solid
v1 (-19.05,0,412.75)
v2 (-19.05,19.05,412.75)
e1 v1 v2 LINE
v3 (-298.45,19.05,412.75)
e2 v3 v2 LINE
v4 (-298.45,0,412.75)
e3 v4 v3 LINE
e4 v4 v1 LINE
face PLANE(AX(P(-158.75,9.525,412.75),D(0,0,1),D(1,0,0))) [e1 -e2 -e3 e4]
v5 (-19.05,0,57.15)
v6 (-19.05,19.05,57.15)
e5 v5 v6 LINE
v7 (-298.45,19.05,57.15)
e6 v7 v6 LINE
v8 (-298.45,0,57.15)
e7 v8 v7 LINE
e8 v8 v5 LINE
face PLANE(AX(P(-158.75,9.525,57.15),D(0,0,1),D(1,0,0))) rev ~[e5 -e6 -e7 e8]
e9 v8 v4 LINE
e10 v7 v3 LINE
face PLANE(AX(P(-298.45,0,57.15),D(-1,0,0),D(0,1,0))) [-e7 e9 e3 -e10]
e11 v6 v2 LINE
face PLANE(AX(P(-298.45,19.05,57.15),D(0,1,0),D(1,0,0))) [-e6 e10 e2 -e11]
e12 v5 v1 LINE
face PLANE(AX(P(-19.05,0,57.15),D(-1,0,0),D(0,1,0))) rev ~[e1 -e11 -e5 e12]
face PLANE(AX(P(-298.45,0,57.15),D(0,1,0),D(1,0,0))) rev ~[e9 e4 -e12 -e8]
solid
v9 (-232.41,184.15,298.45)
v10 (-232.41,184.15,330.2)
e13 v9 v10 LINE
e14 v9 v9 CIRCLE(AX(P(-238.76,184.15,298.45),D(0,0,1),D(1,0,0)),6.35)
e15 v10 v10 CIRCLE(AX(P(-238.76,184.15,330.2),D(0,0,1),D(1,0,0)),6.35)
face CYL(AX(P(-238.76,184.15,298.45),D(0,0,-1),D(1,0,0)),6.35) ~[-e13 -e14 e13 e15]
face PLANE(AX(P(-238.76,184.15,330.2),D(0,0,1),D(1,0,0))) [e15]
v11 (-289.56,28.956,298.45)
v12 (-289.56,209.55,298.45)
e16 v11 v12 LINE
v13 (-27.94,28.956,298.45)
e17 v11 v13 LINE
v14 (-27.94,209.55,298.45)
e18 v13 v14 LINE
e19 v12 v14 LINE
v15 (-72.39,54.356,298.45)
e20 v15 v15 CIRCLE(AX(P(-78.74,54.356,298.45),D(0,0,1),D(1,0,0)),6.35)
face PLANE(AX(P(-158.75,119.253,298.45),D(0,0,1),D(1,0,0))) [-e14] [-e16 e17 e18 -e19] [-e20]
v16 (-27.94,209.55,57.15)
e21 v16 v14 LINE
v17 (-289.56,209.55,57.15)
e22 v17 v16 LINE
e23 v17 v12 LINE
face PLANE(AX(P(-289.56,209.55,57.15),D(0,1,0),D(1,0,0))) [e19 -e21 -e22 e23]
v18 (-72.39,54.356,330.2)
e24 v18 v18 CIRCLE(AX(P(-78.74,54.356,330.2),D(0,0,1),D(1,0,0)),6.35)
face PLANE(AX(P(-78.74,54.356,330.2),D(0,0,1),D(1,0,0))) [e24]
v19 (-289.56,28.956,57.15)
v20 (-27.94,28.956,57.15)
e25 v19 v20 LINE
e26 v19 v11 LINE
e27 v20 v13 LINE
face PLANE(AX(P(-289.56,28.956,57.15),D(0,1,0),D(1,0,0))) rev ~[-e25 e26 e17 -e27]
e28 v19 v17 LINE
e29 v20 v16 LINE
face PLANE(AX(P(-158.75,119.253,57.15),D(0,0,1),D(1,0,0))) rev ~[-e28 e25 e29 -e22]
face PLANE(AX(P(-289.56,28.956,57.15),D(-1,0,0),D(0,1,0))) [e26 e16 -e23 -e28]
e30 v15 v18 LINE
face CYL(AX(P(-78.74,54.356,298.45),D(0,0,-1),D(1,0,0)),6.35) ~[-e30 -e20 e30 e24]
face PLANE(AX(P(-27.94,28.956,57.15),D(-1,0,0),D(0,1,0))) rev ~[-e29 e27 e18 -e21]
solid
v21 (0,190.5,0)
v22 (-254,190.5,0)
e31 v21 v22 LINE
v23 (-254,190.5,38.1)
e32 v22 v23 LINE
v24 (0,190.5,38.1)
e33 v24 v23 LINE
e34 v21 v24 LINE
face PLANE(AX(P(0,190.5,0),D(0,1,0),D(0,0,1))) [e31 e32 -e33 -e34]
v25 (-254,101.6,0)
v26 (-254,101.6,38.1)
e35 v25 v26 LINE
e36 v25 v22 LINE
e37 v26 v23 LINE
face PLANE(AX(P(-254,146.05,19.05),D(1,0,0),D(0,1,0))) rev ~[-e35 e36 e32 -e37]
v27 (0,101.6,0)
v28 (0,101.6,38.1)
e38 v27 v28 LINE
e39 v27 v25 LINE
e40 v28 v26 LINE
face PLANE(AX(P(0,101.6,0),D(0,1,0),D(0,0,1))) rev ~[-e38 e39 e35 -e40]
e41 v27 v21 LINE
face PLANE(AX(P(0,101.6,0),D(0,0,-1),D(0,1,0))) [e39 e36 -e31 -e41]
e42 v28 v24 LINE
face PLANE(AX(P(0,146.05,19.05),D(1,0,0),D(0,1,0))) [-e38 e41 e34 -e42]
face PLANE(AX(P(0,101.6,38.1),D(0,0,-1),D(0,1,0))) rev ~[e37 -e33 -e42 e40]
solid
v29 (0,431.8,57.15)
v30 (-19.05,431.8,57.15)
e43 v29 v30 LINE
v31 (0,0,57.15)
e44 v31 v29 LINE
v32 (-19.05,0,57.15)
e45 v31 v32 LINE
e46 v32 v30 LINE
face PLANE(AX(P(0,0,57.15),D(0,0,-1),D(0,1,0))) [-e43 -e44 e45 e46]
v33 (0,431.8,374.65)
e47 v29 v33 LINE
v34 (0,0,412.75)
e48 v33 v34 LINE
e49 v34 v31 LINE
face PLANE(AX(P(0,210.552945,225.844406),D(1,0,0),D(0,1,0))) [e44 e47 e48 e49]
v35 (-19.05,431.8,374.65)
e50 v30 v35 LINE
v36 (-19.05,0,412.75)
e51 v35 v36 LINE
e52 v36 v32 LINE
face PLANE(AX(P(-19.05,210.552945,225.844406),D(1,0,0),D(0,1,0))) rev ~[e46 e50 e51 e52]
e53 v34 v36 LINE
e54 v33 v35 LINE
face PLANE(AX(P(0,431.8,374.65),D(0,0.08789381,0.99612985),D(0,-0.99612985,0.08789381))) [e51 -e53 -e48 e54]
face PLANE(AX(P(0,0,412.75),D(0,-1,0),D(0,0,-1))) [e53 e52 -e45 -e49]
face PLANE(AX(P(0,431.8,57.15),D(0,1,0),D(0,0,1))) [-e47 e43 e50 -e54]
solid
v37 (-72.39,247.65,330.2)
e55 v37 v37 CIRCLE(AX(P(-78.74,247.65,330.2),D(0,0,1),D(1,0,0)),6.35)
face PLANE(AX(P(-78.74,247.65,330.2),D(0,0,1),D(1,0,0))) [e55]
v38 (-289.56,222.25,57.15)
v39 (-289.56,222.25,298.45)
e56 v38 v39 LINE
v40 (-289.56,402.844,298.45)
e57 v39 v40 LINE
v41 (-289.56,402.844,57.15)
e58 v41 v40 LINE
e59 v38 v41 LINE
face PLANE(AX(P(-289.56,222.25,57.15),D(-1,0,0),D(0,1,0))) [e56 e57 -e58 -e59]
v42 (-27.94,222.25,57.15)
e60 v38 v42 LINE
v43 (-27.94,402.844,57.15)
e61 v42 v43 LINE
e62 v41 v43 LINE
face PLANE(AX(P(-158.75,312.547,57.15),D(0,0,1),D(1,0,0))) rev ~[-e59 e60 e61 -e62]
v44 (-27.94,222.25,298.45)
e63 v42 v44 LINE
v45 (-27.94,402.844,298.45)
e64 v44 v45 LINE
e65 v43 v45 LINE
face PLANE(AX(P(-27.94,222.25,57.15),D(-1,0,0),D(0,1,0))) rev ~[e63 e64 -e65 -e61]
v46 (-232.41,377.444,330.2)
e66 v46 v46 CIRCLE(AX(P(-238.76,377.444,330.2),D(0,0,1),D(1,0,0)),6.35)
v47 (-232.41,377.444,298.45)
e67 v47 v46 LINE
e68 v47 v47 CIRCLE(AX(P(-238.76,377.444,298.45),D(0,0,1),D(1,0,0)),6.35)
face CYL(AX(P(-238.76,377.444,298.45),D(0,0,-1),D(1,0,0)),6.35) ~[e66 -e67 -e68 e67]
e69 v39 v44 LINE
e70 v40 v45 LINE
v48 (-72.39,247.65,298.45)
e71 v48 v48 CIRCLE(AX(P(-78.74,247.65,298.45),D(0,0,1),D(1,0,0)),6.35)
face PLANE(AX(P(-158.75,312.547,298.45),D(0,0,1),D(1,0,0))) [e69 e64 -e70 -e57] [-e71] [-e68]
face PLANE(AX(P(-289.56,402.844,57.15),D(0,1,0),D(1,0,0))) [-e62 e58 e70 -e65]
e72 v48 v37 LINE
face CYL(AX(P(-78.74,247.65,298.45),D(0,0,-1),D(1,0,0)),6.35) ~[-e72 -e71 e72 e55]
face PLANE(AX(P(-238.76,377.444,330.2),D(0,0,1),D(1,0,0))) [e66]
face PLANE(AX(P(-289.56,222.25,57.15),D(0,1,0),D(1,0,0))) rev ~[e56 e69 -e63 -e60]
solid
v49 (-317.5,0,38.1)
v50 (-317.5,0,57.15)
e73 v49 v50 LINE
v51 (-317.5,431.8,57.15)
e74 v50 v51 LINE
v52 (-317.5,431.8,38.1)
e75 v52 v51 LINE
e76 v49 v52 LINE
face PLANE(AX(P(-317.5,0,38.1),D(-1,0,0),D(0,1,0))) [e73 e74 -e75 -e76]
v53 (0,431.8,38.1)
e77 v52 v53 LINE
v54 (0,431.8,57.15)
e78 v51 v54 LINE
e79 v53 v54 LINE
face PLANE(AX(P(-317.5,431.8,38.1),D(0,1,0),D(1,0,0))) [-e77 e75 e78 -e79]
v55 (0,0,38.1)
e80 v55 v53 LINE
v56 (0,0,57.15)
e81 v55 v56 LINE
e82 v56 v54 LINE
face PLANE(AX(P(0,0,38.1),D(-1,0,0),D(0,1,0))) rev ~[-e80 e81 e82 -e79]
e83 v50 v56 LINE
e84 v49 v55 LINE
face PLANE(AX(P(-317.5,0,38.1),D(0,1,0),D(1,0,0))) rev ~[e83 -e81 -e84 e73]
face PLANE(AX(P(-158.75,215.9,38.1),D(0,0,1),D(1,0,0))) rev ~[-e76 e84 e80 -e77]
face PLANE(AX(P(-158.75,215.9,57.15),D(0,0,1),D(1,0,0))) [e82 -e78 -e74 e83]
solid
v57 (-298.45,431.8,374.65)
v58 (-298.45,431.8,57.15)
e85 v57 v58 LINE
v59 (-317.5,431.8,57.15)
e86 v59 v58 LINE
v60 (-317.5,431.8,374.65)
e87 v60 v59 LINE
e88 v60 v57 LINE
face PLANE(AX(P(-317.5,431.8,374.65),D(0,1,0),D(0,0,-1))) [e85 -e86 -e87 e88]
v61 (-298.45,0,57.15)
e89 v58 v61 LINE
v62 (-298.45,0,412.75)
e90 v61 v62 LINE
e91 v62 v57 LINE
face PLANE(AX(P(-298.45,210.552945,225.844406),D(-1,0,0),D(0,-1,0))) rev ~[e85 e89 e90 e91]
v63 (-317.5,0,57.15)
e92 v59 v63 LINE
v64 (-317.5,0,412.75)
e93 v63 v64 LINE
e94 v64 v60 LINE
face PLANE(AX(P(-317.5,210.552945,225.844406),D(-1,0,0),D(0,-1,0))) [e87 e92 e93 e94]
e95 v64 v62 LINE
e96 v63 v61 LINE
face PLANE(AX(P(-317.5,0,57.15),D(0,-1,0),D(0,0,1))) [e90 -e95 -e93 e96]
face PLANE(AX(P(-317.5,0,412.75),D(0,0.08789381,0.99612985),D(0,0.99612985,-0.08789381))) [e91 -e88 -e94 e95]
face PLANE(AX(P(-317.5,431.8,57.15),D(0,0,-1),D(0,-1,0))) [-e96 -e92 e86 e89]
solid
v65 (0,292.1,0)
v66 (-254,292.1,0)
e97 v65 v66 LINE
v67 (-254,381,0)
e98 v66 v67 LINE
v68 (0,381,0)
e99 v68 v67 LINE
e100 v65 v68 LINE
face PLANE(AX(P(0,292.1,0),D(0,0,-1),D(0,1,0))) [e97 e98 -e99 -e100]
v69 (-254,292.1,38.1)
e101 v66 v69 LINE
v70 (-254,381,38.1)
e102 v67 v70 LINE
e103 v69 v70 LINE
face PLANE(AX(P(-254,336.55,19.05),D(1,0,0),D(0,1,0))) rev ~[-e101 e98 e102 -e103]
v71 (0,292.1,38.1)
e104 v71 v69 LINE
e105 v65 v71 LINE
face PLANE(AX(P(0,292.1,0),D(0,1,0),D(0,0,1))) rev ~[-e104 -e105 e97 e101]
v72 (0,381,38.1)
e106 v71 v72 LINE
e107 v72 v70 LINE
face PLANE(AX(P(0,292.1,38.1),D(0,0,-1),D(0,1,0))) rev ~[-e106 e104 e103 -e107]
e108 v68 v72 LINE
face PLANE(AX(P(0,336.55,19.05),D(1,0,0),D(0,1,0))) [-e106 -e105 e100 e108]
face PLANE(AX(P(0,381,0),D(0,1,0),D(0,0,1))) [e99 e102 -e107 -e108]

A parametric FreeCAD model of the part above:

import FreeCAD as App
import Part
import Sketcher
Q = App.Units.Quantity


def add_polygon(sketch, points):
    """Adds a closed chain of lines whose ends are joined by coincident constraints."""
    first, n = sketch.GeometryCount, len(points)
    for a, b in zip(points, points[1:] + points[:1]):
        sketch.addGeometry(Part.LineSegment(App.Vector(*a, 0), App.Vector(*b, 0)), False)
    for i in range(n):
        sketch.addConstraint(Sketcher.Constraint("Coincident", first + i, 2, first + (i + 1) % n, 1))

doc = App.newDocument("Part")
body = doc.addObject("PartDesign::Body", "Body")

# Sketch on YZ plane
sketch1 = body.newObject("Sketcher::SketchObject", "Sketch")
sketch1.AttachmentSupport = (doc.getObject("YZ_Plane"), [""])
sketch1.MapMode = "FlatFace"
add_polygon(sketch1, [(102, 38), (102, 0), (190, 0), (190, 38)])  # lines 0-3
sketch1.addConstraint(Sketcher.Constraint("Vertical", 0))
sketch1.addConstraint(Sketcher.Constraint("Horizontal", 1))
sketch1.addConstraint(Sketcher.Constraint("Vertical", 2))
sketch1.addConstraint(Sketcher.Constraint("Horizontal", 3))
sketch1.addConstraint(Sketcher.Constraint("PointOnObject", 0, 2, -1))
sketch1.addConstraint(Sketcher.Constraint("DistanceX", 1, 1, 1, 2, Q("3.5 in")))
sketch1.addConstraint(Sketcher.Constraint("DistanceY", 0, 2, 0, 1, Q("1.5 in")))
sketch1.addConstraint(Sketcher.Constraint("DistanceX", -1, 1, 0, 2, Q("4 in")))
pad1 = body.newObject("PartDesign::Pad", "Pad")
pad1.Profile = sketch1
pad1.Length = Q("10 in")
pad1.Reversed = True
body2 = doc.addObject("PartDesign::Body", "Body001")

# Sketch on YZ plane
sketch2 = body2.newObject("Sketcher::SketchObject", "Sketch001")
sketch2.AttachmentSupport = (doc.getObject("YZ_Plane001"), [""])
sketch2.MapMode = "FlatFace"
add_polygon(sketch2, [(292, 38), (292, 0), (381, 0), (381, 38)])  # lines 0-3
sketch2.addConstraint(Sketcher.Constraint("Vertical", 0))
sketch2.addConstraint(Sketcher.Constraint("Horizontal", 1))
sketch2.addConstraint(Sketcher.Constraint("Vertical", 2))
sketch2.addConstraint(Sketcher.Constraint("Horizontal", 3))
sketch2.addConstraint(Sketcher.Constraint("PointOnObject", 0, 2, -1))
sketch2.addConstraint(Sketcher.Constraint("DistanceX", 1, 1, 1, 2, Q("3.5 in")))
sketch2.addConstraint(Sketcher.Constraint("DistanceY", 0, 2, 0, 1, Q("1.5 in")))
sketch2.addConstraint(Sketcher.Constraint("DistanceX", -1, 1, 1, 2, Q("15 in")))
pad2 = body2.newObject("PartDesign::Pad", "Pad001")
pad2.Profile = sketch2
pad2.Length = Q("10 in")
pad2.Reversed = True
body3 = doc.addObject("PartDesign::Body", "Body002")

# Sketch on XY plane
sketch3 = body3.newObject("Sketcher::SketchObject", "Sketch002")
sketch3.AttachmentSupport = (doc.getObject("XY_Plane002"), [""])
sketch3.MapMode = "FlatFace"
sketch3.AttachmentOffset = App.Placement(App.Vector(0, 0, 1.5 * 25.4), App.Rotation())
add_polygon(sketch3, [(-318, 432), (-318, 0), (0, 0), (0, 432)])  # lines 0-3
sketch3.addConstraint(Sketcher.Constraint("Vertical", 0))
sketch3.addConstraint(Sketcher.Constraint("Horizontal", 1))
sketch3.addConstraint(Sketcher.Constraint("Vertical", 2))
sketch3.addConstraint(Sketcher.Constraint("Horizontal", 3))
sketch3.addConstraint(Sketcher.Constraint("Coincident", 1, 2, -1, 1))
sketch3.addConstraint(Sketcher.Constraint("DistanceY", 0, 2, 0, 1, Q("17 in")))
sketch3.addConstraint(Sketcher.Constraint("DistanceX", 1, 1, 1, 2, Q("12.5 in")))
pad3 = body3.newObject("PartDesign::Pad", "Pad002")
pad3.Profile = sketch3
pad3.Length = Q("0.75 in")
body4 = doc.addObject("PartDesign::Body", "Body003")

# Sketch on YZ plane
sketch4 = body4.newObject("Sketcher::SketchObject", "Sketch003")
sketch4.AttachmentSupport = (doc.getObject("YZ_Plane003"), [""])
sketch4.MapMode = "FlatFace"
sketch4.AttachmentOffset = App.Placement(App.Vector(0, 0, -12.5 * 25.4), App.Rotation())
add_polygon(sketch4, [(432, 375), (432, 57), (0, 57), (0, 413)])  # lines 0-3
sketch4.addConstraint(Sketcher.Constraint("Vertical", 0))
sketch4.addConstraint(Sketcher.Constraint("Horizontal", 1))
sketch4.addConstraint(Sketcher.Constraint("Vertical", 2))
sketch4.addConstraint(Sketcher.Constraint("PointOnObject", 1, 2, -2))
sketch4.addConstraint(Sketcher.Constraint("DistanceX", 1, 2, 1, 1, Q("17 in")))
sketch4.addConstraint(Sketcher.Constraint("DistanceY", 2, 1, 2, 2, Q("14 in")))
sketch4.addConstraint(Sketcher.Constraint("DistanceY", 0, 2, 0, 1, Q("12.5 in")))
sketch4.addConstraint(Sketcher.Constraint("DistanceY", -1, 1, 0, 2, Q("2.25 in")))
pad4 = body4.newObject("PartDesign::Pad", "Pad003")
pad4.Profile = sketch4
pad4.Length = Q("0.75 in")
body5 = doc.addObject("PartDesign::Body", "Body004")

# Sketch on YZ plane
sketch5 = body5.newObject("Sketcher::SketchObject", "Sketch004")
sketch5.AttachmentSupport = (doc.getObject("YZ_Plane004"), [""])
sketch5.MapMode = "FlatFace"
add_polygon(sketch5, [(432, 57), (432, 375), (0, 413), (0, 57)])  # lines 0-3
sketch5.addConstraint(Sketcher.Constraint("Vertical", 0))
sketch5.addConstraint(Sketcher.Constraint("Vertical", 2))
sketch5.addConstraint(Sketcher.Constraint("Horizontal", 3))
sketch5.addConstraint(Sketcher.Constraint("PointOnObject", 1, 2, -2))
sketch5.addConstraint(Sketcher.Constraint("DistanceX", 3, 1, 3, 2, Q("17 in")))
sketch5.addConstraint(Sketcher.Constraint("DistanceY", 2, 2, 2, 1, Q("14 in")))
sketch5.addConstraint(Sketcher.Constraint("DistanceY", 0, 1, 0, 2, Q("12.5 in")))
sketch5.addConstraint(Sketcher.Constraint("DistanceY", -1, 1, 0, 2, Q("14.75 in")))
pad5 = body5.newObject("PartDesign::Pad", "Pad004")
pad5.Profile = sketch5
pad5.Length = Q("0.75 in")
pad5.Reversed = True
body6 = doc.addObject("PartDesign::Body", "Body005")

# Sketch on XY plane
sketch6 = body6.newObject("Sketcher::SketchObject", "Sketch005")
sketch6.AttachmentSupport = (doc.getObject("XY_Plane005"), [""])
sketch6.MapMode = "FlatFace"
sketch6.AttachmentOffset = App.Placement(App.Vector(0, 0, 2.25 * 25.4), App.Rotation())
add_polygon(sketch6, [(-290, 403), (-290, 222), (-28, 222), (-28, 403)])  # lines 0-3
sketch6.addConstraint(Sketcher.Constraint("Vertical", 0))
sketch6.addConstraint(Sketcher.Constraint("Horizontal", 1))
sketch6.addConstraint(Sketcher.Constraint("Vertical", 2))
sketch6.addConstraint(Sketcher.Constraint("Horizontal", 3))
sketch6.addConstraint(Sketcher.Constraint("DistanceX", 1, 1, 1, 2, Q("10.3 in")))
sketch6.addConstraint(Sketcher.Constraint("DistanceY", 0, 2, 0, 1, Q("7.11 in")))
sketch6.addConstraint(Sketcher.Constraint("DistanceX", 0, 2, -1, 1, Q("11.4 in")))
sketch6.addConstraint(Sketcher.Constraint("DistanceY", -1, 1, 0, 2, Q("8.75 in")))
pad6 = body6.newObject("PartDesign::Pad", "Pad005")
pad6.Profile = sketch6
pad6.Length = Q("9.5 in")

# Sketch on XY plane
sketch7 = body6.newObject("Sketcher::SketchObject", "Sketch006")
sketch7.AttachmentSupport = (doc.getObject("XY_Plane005"), [""])
sketch7.MapMode = "FlatFace"
sketch7.AttachmentOffset = App.Placement(App.Vector(0, 0, 11.75 * 25.4), App.Rotation())
sketch7.addGeometry(Part.Circle(App.Vector(-239, 377, 0), App.Vector(0, 0, 1), 6), False)
sketch7.addGeometry(Part.Circle(App.Vector(-79, 248, 0), App.Vector(0, 0, 1), 6), False)
sketch7.addConstraint(Sketcher.Constraint("Equal", 0, 1))
sketch7.addConstraint(Sketcher.Constraint("Diameter", 0, Q("0.5 in")))
sketch7.addConstraint(Sketcher.Constraint("DistanceX", 0, 3, -1, 1, Q("9.4 in")))
sketch7.addConstraint(Sketcher.Constraint("DistanceX", 1, 3, -1, 1, Q("3.1 in")))
sketch7.addConstraint(Sketcher.Constraint("DistanceY", -1, 1, 0, 3, Q("14.86 in")))
sketch7.addConstraint(Sketcher.Constraint("DistanceY", -1, 1, 1, 3, Q("9.75 in")))
pad7 = body6.newObject("PartDesign::Pad", "Pad006")
pad7.Profile = sketch7
pad7.Length = Q("1.25 in")
body7 = doc.addObject("PartDesign::Body", "Body006")

# Sketch on XY plane
sketch8 = body7.newObject("Sketcher::SketchObject", "Sketch007")
sketch8.AttachmentSupport = (doc.getObject("XY_Plane006"), [""])
sketch8.MapMode = "FlatFace"
sketch8.AttachmentOffset = App.Placement(App.Vector(0, 0, 2.25 * 25.4), App.Rotation())
add_polygon(sketch8, [(-290, 210), (-290, 29), (-28, 29), (-28, 210)])  # lines 0-3
sketch8.addConstraint(Sketcher.Constraint("Vertical", 0))
sketch8.addConstraint(Sketcher.Constraint("Horizontal", 1))
sketch8.addConstraint(Sketcher.Constraint("Vertical", 2))
sketch8.addConstraint(Sketcher.Constraint("Horizontal", 3))
sketch8.addConstraint(Sketcher.Constraint("DistanceX", 1, 1, 1, 2, Q("10.3 in")))
sketch8.addConstraint(Sketcher.Constraint("DistanceY", 0, 2, 0, 1, Q("7.11 in")))
sketch8.addConstraint(Sketcher.Constraint("DistanceX", 0, 2, -1, 1, Q("11.4 in")))
sketch8.addConstraint(Sketcher.Constraint("DistanceY", -1, 1, 0, 2, Q("1.14 in")))
pad8 = body7.newObject("PartDesign::Pad", "Pad007")
pad8.Profile = sketch8
pad8.Length = Q("9.5 in")

# Sketch on XY plane
sketch9 = body7.newObject("Sketcher::SketchObject", "Sketch008")
sketch9.AttachmentSupport = (doc.getObject("XY_Plane006"), [""])
sketch9.MapMode = "FlatFace"
sketch9.AttachmentOffset = App.Placement(App.Vector(0, 0, 11.75 * 25.4), App.Rotation())
sketch9.addGeometry(Part.Circle(App.Vector(-239, 184, 0), App.Vector(0, 0, 1), 6), False)
sketch9.addGeometry(Part.Circle(App.Vector(-79, 54, 0), App.Vector(0, 0, 1), 6), False)
sketch9.addConstraint(Sketcher.Constraint("Equal", 0, 1))
sketch9.addConstraint(Sketcher.Constraint("Diameter", 0, Q("0.5 in")))
sketch9.addConstraint(Sketcher.Constraint("DistanceX", 0, 3, -1, 1, Q("9.4 in")))
sketch9.addConstraint(Sketcher.Constraint("DistanceX", 1, 3, -1, 1, Q("3.1 in")))
sketch9.addConstraint(Sketcher.Constraint("DistanceY", -1, 1, 0, 3, Q("7.25 in")))
sketch9.addConstraint(Sketcher.Constraint("DistanceY", -1, 1, 1, 3, Q("2.14 in")))
pad9 = body7.newObject("PartDesign::Pad", "Pad008")
pad9.Profile = sketch9
pad9.Length = Q("1.25 in")
body8 = doc.addObject("PartDesign::Body", "Body007")

# Sketch on XY plane
sketch10 = body8.newObject("Sketcher::SketchObject", "Sketch009")
sketch10.AttachmentSupport = (doc.getObject("XY_Plane007"), [""])
sketch10.MapMode = "FlatFace"
sketch10.AttachmentOffset = App.Placement(App.Vector(0, 0, 2.25 * 25.4), App.Rotation())
add_polygon(sketch10, [(-298, 19), (-298, 0), (-19, 0), (-19, 19)])  # lines 0-3
sketch10.addConstraint(Sketcher.Constraint("Vertical", 0))
sketch10.addConstraint(Sketcher.Constraint("Horizontal", 1))
sketch10.addConstraint(Sketcher.Constraint("Vertical", 2))
sketch10.addConstraint(Sketcher.Constraint("Horizontal", 3))
sketch10.addConstraint(Sketcher.Constraint("PointOnObject", 0, 2, -1))
sketch10.addConstraint(Sketcher.Constraint("DistanceX", 1, 1, 1, 2, Q("11 in")))
sketch10.addConstraint(Sketcher.Constraint("DistanceY", 0, 2, 0, 1, Q("0.75 in")))
sketch10.addConstraint(Sketcher.Constraint("DistanceX", 0, 2, -1, 1, Q("11.75 in")))
pad10 = body8.newObject("PartDesign::Pad", "Pad009")
pad10.Profile = sketch10
pad10.Length = Q("14 in")

doc.recompute()
